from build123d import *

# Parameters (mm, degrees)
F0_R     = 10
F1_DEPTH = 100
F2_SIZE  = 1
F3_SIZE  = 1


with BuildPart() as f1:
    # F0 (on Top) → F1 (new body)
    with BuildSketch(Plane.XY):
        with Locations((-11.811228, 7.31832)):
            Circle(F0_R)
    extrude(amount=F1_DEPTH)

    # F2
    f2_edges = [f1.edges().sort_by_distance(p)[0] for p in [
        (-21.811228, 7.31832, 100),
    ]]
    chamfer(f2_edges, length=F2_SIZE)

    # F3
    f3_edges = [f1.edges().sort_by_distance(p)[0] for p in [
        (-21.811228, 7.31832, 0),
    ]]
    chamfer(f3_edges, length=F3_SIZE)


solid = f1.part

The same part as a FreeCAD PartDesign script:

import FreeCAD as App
import Part
import Sketcher
from FreeCAD import Vector
Q = App.Units.Quantity


def edges_at(feature, points):
    """Names of the edges that pass closest to the given points."""
    edges = feature.Shape.Edges
    near = lambda p: min(range(len(edges)), key=lambda i: edges[i].distToShape(Part.Vertex(*p))[0])
    return sorted({f"Edge{near(p) + 1}" for p in points})

doc = App.newDocument("Part")
body = doc.addObject("PartDesign::Body", "Body")

# Sketch on XY plane
sketch1 = doc.addObject("Sketcher::SketchObject", "Sketch")
body.addObject(sketch1)
sketch1.AttachmentSupport = (doc.XY_Plane, [""])
sketch1.MapMode = "FlatFace"
sketch1.addGeometry(Part.Circle(Vector(-12, 7, 0), Vector(0, 0, 1), 10), False)
sketch1.addConstraint(Sketcher.Constraint("Diameter", 0, Q("20 mm")))
sketch1.addConstraint(Sketcher.Constraint("DistanceY", -1, 1, 0, 3, Q("7.31832 mm")))
sketch1.addConstraint(Sketcher.Constraint("DistanceX", 0, 3, -1, 1, Q("11.811228 mm")))
pad1 = doc.addObject("PartDesign::Pad", "Pad")
body.addObject(pad1)
pad1.Profile = sketch1
pad1.Length = 100
doc.recompute()

chamfer = doc.addObject("PartDesign::Chamfer", "Chamfer")
body.addObject(chamfer)
chamfer.Base = (pad1, edges_at(pad1, [(-21.811, 7.318, 100)]))
chamfer.Size = 1
doc.recompute()

chamfer2 = doc.addObject("PartDesign::Chamfer", "Chamfer001")
body.addObject(chamfer2)
chamfer2.Base = (chamfer, edges_at(chamfer, [(-21.811, 7.318, 0)]))
chamfer2.Size = 1

doc.recompute()
